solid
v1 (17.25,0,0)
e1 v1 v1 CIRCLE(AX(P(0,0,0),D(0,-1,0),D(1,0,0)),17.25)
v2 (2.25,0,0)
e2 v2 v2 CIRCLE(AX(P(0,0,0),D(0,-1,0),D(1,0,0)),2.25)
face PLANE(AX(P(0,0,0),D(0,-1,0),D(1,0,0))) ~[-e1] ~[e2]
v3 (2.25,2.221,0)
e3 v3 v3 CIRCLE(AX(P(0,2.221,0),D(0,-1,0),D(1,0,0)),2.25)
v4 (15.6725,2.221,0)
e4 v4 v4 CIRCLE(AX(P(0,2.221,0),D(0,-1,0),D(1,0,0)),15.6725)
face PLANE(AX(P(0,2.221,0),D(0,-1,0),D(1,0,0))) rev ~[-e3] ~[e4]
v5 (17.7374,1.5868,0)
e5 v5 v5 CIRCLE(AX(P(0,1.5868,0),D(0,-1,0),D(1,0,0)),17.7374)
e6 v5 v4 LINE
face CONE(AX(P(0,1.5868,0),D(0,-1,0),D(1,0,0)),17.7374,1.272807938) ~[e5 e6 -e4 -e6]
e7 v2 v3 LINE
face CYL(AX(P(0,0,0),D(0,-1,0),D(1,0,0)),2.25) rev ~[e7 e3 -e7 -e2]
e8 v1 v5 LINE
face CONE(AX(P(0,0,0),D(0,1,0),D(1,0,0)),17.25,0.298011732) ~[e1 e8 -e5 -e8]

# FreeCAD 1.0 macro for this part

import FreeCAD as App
import Part
import Sketcher

V = App.Vector

doc = App.newDocument("Part")
body = doc.addObject("PartDesign::Body", "Body")

# Sketch on XY plane
sketch1 = body.newObject("Sketcher::SketchObject", "Sketch")
sketch1.AttachmentSupport = (doc.getObject("XY_Plane"), [""])
sketch1.MapMode = "FlatFace"
sketch1.addGeometry(Part.LineSegment(V(0, 2.2, 0), V(0, 0, 0)), False)
sketch1.addGeometry(Part.LineSegment(V(0, 0, 0), V(17.2, 0, 0)), False)
sketch1.addGeometry(Part.LineSegment(V(17.2, 0, 0), V(17.7, 1.6, 0)), False)
sketch1.addGeometry(Part.LineSegment(V(17.7, 1.6, 0), V(15.7, 2.2, 0)), False)
sketch1.addGeometry(Part.LineSegment(V(15.7, 2.2, 0), V(0, 2.2, 0)), False)
sketch1.addConstraint(Sketcher.Constraint("Coincident", 0, 2, 1, 1))
sketch1.addConstraint(Sketcher.Constraint("Coincident", 1, 2, 2, 1))
sketch1.addConstraint(Sketcher.Constraint("Coincident", 2, 2, 3, 1))
sketch1.addConstraint(Sketcher.Constraint("Coincident", 3, 2, 4, 1))
sketch1.addConstraint(Sketcher.Constraint("Coincident", 4, 2, 0, 1))
sketch1.addConstraint(Sketcher.Constraint("Vertical", 0))
sketch1.addConstraint(Sketcher.Constraint("Horizontal", 1))
sketch1.addConstraint(Sketcher.Constraint("Horizontal", 4))
sketch1.addConstraint(Sketcher.Constraint("Coincident", 0, 2, -1, 1))
sketch1.addConstraint(Sketcher.Constraint("Perpendicular", 2, 3))
sketch1.addConstraint(Sketcher.Constraint("DistanceX", 1, 1, 1, 2, 17.25))
sketch1.addConstraint(Sketcher.Constraint("Distance", 2, 1.66))
sketch1.addConstraint(Sketcher.Constraint("Distance", 3, 2.16))
sketch1.addConstraint(Sketcher.Constraint("DistanceY", 0, 2, 0, 1, 2.221))
revolution = body.newObject("PartDesign::Revolution", "Revolution")
revolution.Profile = sketch1
revolution.ReferenceAxis = (sketch1, ["V_Axis"])
revolution.Angle = 360

# Sketch on XZ plane
sketch2 = body.newObject("Sketcher::SketchObject", "Sketch001")
sketch2.AttachmentSupport = (doc.getObject("XZ_Plane"), [""])
sketch2.MapMode = "FlatFace"
sketch2.addGeometry(Part.Circle(V(0, 0, 0), V(0, 0, 1), 2.2), False)
sketch2.addConstraint(Sketcher.Constraint("Coincident", 0, 3, -1, 1))
sketch2.addConstraint(Sketcher.Constraint("Diameter", 0, 4.5))
pocket1 = body.newObject("PartDesign::Pocket", "Pocket")
pocket1.Profile = sketch2
pocket1.Length = 26
pocket1.Midplane = True

doc.recompute()
